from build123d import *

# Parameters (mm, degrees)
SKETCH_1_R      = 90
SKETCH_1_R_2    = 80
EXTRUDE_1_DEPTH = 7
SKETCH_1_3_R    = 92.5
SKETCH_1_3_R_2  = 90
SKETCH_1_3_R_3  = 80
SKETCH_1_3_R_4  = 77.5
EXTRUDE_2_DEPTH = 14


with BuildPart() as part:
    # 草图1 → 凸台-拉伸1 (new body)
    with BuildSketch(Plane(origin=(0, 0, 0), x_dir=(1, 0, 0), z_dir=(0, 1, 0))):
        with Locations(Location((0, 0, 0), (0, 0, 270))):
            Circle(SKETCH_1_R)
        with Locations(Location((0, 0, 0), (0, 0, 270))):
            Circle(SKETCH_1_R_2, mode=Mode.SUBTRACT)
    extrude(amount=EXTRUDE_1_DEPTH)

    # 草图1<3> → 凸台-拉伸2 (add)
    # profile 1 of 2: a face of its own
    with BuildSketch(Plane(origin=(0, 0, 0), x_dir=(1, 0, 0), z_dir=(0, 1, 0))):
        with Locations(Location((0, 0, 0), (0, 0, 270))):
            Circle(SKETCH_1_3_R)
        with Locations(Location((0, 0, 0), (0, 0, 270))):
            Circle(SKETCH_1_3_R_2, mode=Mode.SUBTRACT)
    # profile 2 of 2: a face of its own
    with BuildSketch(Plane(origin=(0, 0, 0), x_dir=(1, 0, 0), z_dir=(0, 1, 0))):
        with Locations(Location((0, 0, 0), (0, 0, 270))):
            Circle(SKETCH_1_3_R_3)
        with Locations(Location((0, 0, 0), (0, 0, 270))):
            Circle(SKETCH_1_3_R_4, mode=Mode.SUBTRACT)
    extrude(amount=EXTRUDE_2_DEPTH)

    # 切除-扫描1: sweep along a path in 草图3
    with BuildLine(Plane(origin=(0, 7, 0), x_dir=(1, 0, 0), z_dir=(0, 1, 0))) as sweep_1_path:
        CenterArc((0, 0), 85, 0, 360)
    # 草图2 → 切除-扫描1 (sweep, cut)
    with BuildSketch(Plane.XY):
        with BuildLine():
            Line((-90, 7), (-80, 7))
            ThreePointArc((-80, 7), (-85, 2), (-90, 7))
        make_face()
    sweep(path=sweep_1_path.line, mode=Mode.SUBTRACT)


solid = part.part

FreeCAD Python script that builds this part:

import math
import FreeCAD as App
import Part
import Sketcher
Q = App.Units.Quantity

doc = App.newDocument("Part")
params = doc.addObject("Spreadsheet::Sheet", "Params")
for row, (alias, value) in enumerate([
    ("sketch1_diameter", "180 mm"),
    ("sketch1_diameter2", "160 mm"),
    ("pad1_length", "7 mm"),
    ("sketch2_diameter", "185 mm"),
    ("sketch2_diameter2", "180 mm"),
    ("sketch2_diameter3", "160 mm"),
    ("sketch2_diameter4", "155 mm"),
    ("pad2_length", "14 mm"),
    ("sketch3_radius", "5 mm"),
    ("sketch4_diameter", "170 mm"),
], start=1):
    params.set(f"A{row}", alias)
    params.set(f"B{row}", "=" + value)
    params.setAlias(f"B{row}", alias)

body = doc.addObject("PartDesign::Body", "Body")

sketch1 = body.newObject("Sketcher::SketchObject", "Sketch")
sketch1.AttachmentSupport = (doc.getObject("XZ_Plane"), [""])
sketch1.MapMode = "FlatFace"
sketch1.addGeometry(Part.Circle(App.Vector(0, 0, 0), App.Vector(0, 0, 1), 90), False)
sketch1.addGeometry(Part.Circle(App.Vector(0, 0, 0), App.Vector(0, 0, 1), 80), False)
sketch1.addConstraint(Sketcher.Constraint("Coincident", 0, 3, -1, 1))
sketch1.addConstraint(Sketcher.Constraint("Coincident", 1, 3, -1, 1))
sketch1.addConstraint(Sketcher.Constraint("Diameter", 0, Q("180 mm")))
sketch1.addConstraint(Sketcher.Constraint("Diameter", 1, Q("160 mm")))
sketch1.setExpression("Constraints[2]", "Params.sketch1_diameter")
sketch1.setExpression("Constraints[3]", "Params.sketch1_diameter2")
pad1 = body.newObject("PartDesign::Pad", "Pad")
pad1.Profile = sketch1
pad1.setExpression("Length", "Params.pad1_length")
pad1.Reversed = True

sketch2 = body.newObject("Sketcher::SketchObject", "Sketch001")
sketch2.AttachmentSupport = (doc.getObject("XZ_Plane"), [""])
sketch2.MapMode = "FlatFace"
sketch2.addGeometry(Part.Circle(App.Vector(0, 0, 0), App.Vector(0, 0, 1), 92), False)
sketch2.addGeometry(Part.Circle(App.Vector(0, 0, 0), App.Vector(0, 0, 1), 90), False)
sketch2.addGeometry(Part.Circle(App.Vector(0, 0, 0), App.Vector(0, 0, 1), 80), False)
sketch2.addGeometry(Part.Circle(App.Vector(0, 0, 0), App.Vector(0, 0, 1), 78), False)
sketch2.addConstraint(Sketcher.Constraint("Coincident", 0, 3, -1, 1))
sketch2.addConstraint(Sketcher.Constraint("Coincident", 1, 3, -1, 1))
sketch2.addConstraint(Sketcher.Constraint("Coincident", 2, 3, -1, 1))
sketch2.addConstraint(Sketcher.Constraint("Coincident", 3, 3, -1, 1))
sketch2.addConstraint(Sketcher.Constraint("Diameter", 0, Q("185 mm")))
sketch2.addConstraint(Sketcher.Constraint("Diameter", 1, Q("180 mm")))
sketch2.addConstraint(Sketcher.Constraint("Diameter", 2, Q("160 mm")))
sketch2.addConstraint(Sketcher.Constraint("Diameter", 3, Q("155 mm")))
sketch2.setExpression("Constraints[4]", "Params.sketch2_diameter")
sketch2.setExpression("Constraints[5]", "Params.sketch2_diameter2")
sketch2.setExpression("Constraints[6]", "Params.sketch2_diameter3")
sketch2.setExpression("Constraints[7]", "Params.sketch2_diameter4")
pad2 = body.newObject("PartDesign::Pad", "Pad001")
pad2.Profile = sketch2
pad2.setExpression("Length", "Params.pad2_length")
pad2.Reversed = True

sketch3 = body.newObject("Sketcher::SketchObject", "Sketch002")
sketch3.AttachmentSupport = (doc.getObject("XY_Plane"), [""])
sketch3.MapMode = "FlatFace"
sketch3.addGeometry(Part.LineSegment(App.Vector(-80, 7, 0), App.Vector(-90, 7, 0)), False)
sketch3.addGeometry(Part.ArcOfCircle(Part.Circle(App.Vector(-85, 7, 0), App.Vector(0, 0, 1), 5), math.radians(180), math.radians(360)), False)
sketch3.addConstraint(Sketcher.Constraint("Coincident", 0, 1, 1, 2))
sketch3.addConstraint(Sketcher.Constraint("Coincident", 1, 1, 0, 2))
sketch3.addConstraint(Sketcher.Constraint("Horizontal", 0))
sketch3.addConstraint(Sketcher.Constraint("Horizontal", 1, 3, 0, 1))
sketch3.addConstraint(Sketcher.Constraint("Radius", 1, Q("5 mm")))
sketch3.addConstraint(Sketcher.Constraint("DistanceX", 1, 3, -1, 1, Q("85 mm")))
sketch3.addConstraint(Sketcher.Constraint("DistanceY", -1, 1, 1, 3, Q("7 mm")))
sketch3.setExpression("Constraints[4]", "Params.sketch3_radius")

sketch4 = body.newObject("Sketcher::SketchObject", "Sketch003")
sketch4.AttachmentSupport = (doc.getObject("XZ_Plane"), [""])
sketch4.MapMode = "FlatFace"
sketch4.AttachmentOffset = App.Placement(App.Vector(0, 0, -7), App.Rotation())
sketch4.addGeometry(Part.Circle(App.Vector(0, 0, 0), App.Vector(0, 0, 1), 85), False)
sketch4.addConstraint(Sketcher.Constraint("Coincident", 0, 3, -1, 1))
sketch4.addConstraint(Sketcher.Constraint("Diameter", 0, Q("170 mm")))
sketch4.setExpression("Constraints[1]", "Params.sketch4_diameter")
doc.recompute()

subtractivepipe = body.newObject("PartDesign::SubtractivePipe", "SubtractivePipe")
subtractivepipe.Profile = sketch3
subtractivepipe.Spine = (sketch4, ["Edge1"])

doc.recompute()
